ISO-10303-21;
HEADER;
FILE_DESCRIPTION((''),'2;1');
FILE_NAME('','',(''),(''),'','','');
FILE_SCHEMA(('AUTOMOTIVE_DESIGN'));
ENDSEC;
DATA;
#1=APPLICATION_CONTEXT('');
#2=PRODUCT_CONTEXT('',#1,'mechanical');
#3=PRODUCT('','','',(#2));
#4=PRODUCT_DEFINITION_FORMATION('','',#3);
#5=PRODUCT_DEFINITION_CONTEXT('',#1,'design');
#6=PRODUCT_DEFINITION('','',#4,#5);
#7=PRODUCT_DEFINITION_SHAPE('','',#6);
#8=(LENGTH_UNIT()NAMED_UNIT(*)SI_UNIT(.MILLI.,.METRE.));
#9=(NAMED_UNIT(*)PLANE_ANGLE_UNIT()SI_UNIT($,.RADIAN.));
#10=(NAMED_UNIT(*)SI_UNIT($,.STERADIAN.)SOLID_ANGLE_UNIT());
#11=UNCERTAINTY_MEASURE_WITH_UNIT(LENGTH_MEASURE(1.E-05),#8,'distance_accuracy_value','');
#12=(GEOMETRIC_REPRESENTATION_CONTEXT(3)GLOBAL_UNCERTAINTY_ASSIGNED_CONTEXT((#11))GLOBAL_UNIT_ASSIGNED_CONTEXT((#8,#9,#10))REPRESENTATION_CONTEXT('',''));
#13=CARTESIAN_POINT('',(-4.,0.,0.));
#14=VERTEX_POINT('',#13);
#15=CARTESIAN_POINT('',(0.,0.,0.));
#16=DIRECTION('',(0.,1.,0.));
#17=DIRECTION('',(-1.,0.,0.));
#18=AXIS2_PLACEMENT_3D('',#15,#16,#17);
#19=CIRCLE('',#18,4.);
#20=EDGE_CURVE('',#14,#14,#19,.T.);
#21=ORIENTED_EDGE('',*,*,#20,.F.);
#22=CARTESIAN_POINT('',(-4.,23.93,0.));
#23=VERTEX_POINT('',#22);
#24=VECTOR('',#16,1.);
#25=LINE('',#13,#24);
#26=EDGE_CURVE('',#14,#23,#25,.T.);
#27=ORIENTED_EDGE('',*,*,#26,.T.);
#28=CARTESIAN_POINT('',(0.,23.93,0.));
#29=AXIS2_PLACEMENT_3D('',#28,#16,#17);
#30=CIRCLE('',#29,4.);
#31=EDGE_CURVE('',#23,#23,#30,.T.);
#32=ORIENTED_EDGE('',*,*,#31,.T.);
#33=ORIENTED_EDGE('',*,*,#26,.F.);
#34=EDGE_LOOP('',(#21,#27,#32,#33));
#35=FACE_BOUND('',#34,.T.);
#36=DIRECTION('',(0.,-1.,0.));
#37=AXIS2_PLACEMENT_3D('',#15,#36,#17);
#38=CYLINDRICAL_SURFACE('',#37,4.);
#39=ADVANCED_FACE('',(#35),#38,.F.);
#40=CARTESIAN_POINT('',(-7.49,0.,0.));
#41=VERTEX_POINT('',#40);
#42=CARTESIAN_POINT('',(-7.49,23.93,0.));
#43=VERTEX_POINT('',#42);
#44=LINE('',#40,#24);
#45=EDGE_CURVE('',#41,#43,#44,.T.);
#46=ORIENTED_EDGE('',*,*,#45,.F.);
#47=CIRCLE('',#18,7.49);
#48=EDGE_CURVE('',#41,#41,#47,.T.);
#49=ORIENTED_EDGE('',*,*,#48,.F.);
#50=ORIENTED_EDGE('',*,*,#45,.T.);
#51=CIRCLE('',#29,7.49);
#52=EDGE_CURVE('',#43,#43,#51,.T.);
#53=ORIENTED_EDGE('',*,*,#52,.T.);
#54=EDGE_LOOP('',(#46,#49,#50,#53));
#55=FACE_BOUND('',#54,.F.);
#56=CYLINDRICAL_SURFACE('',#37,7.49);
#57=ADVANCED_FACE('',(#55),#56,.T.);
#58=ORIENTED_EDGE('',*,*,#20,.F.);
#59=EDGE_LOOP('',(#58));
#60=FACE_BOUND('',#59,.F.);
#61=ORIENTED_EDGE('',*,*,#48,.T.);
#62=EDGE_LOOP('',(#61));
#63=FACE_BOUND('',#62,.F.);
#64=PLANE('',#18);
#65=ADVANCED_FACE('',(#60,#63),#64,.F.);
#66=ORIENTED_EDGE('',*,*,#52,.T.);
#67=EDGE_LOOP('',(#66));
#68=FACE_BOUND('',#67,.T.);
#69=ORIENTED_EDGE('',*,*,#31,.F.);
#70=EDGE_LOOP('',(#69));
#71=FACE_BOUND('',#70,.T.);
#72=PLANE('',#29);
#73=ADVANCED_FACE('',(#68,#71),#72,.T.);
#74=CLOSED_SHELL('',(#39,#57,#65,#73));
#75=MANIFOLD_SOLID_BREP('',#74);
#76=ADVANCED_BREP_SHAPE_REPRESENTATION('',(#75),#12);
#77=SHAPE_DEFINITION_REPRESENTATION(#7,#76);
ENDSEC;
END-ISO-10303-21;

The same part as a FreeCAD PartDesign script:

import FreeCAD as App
import Part
import Sketcher
Q = App.Units.Quantity

doc = App.newDocument("Part")
body = doc.addObject("PartDesign::Body", "Body")

# Sketch on XZ plane
sketch1 = doc.addObject("Sketcher::SketchObject", "Sketch")
body.addObject(sketch1)
sketch1.AttachmentSupport = (doc.XZ_Plane, [""])
sketch1.MapMode = "FlatFace"
sketch1.addGeometry(Part.Circle(App.Vector(0, 0, 0), App.Vector(0, 0, 1), 7.49), False)
sketch1.addGeometry(Part.Circle(App.Vector(0, 0, 0), App.Vector(0, 0, 1), 4), False)
sketch1.addConstraint(Sketcher.Constraint("Coincident", 0, 3, -1, 1))
sketch1.addConstraint(Sketcher.Constraint("Coincident", 1, 3, -1, 1))
sketch1.addConstraint(Sketcher.Constraint("Diameter", 1, Q("8 mm")))
sketch1.addConstraint(Sketcher.Constraint("Diameter", 0, Q("14.98 mm")))
pad1 = doc.addObject("PartDesign::Pad", "Pad")
body.addObject(pad1)
pad1.Profile = sketch1
pad1.Length = 23.93
pad1.Reversed = True

doc.recompute()
